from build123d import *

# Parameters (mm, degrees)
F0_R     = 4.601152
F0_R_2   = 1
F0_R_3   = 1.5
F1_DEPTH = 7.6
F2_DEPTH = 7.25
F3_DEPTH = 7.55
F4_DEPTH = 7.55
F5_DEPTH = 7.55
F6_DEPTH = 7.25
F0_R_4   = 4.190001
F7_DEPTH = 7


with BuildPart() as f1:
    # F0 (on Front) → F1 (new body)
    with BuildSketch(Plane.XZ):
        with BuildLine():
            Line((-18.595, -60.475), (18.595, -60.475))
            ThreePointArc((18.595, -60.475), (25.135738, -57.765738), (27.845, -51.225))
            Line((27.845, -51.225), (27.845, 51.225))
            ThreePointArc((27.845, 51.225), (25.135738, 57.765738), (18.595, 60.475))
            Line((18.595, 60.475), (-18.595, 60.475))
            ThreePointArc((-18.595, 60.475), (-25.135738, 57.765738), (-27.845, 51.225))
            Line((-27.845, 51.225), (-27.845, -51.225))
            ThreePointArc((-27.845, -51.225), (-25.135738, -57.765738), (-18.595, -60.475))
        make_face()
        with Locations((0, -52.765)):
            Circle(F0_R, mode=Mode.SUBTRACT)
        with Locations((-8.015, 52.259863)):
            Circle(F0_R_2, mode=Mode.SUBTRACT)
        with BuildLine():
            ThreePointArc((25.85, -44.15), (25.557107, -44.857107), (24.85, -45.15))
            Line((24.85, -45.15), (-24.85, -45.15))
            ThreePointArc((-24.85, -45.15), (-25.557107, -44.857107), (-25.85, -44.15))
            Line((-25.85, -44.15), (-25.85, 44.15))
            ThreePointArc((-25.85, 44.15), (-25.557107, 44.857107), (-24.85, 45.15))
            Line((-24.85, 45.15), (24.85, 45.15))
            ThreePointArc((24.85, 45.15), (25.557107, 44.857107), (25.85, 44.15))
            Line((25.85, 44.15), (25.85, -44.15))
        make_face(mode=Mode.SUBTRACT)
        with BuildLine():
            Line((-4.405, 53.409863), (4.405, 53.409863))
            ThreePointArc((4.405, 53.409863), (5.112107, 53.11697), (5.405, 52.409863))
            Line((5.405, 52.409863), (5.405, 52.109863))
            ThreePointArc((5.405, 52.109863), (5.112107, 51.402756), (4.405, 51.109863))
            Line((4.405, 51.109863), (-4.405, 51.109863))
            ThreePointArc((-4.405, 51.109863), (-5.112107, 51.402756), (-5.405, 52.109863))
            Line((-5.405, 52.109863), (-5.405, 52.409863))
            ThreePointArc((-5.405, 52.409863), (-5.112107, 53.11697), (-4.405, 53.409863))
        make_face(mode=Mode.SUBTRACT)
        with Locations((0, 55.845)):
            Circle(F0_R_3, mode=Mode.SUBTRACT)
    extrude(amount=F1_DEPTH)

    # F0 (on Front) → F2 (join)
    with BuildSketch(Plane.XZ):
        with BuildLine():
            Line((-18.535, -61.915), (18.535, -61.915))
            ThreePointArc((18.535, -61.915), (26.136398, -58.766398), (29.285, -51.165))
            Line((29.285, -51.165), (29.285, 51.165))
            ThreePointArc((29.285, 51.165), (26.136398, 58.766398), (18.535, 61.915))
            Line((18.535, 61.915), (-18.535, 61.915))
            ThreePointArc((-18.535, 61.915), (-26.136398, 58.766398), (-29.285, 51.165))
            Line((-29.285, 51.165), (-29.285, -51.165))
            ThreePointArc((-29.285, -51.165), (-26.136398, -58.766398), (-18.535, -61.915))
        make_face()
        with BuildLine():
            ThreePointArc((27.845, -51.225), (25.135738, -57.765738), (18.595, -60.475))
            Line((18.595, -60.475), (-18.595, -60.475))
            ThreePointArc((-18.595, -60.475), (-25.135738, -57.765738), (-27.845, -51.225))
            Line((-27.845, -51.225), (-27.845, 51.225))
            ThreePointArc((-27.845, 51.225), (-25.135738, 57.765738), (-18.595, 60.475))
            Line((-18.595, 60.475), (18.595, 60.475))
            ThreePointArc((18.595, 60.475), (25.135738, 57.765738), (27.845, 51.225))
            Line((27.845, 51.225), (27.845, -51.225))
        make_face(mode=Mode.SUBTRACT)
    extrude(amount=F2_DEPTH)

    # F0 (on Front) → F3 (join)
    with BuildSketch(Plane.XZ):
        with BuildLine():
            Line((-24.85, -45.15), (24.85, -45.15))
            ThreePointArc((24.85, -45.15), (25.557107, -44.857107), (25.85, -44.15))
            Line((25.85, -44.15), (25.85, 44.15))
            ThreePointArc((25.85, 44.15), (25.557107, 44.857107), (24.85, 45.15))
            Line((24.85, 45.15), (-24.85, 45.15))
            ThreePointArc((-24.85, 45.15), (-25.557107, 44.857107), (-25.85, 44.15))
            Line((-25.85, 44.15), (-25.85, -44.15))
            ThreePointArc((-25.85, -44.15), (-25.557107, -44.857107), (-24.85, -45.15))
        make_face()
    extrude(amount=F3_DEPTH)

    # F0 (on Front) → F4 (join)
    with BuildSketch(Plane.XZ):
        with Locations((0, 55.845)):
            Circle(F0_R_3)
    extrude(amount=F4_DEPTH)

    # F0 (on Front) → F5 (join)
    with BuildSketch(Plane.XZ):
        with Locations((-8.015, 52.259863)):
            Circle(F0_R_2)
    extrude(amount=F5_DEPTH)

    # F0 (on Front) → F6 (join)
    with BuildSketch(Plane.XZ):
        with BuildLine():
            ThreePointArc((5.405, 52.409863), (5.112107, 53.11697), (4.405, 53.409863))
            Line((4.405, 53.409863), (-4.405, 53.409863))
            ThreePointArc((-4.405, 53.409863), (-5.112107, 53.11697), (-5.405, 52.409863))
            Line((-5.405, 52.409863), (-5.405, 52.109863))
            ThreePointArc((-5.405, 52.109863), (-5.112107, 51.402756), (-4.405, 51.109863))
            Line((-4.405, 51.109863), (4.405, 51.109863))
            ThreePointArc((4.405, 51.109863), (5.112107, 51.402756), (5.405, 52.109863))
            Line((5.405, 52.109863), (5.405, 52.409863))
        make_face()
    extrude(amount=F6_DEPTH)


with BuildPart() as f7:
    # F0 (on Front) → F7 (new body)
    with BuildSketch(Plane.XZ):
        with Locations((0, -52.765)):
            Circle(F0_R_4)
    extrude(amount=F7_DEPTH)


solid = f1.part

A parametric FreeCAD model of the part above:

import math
import FreeCAD as App
import Part
import Sketcher

V = App.Vector
Q = App.Units.Quantity

doc = App.newDocument("Part")
body = doc.addObject("PartDesign::Body", "Body")

# Sketch on XZ plane
sketch1 = body.newObject("Sketcher::SketchObject", "Sketch")
sketch1.AttachmentSupport = (doc.getObject("XZ_Plane"), [""])
sketch1.MapMode = "FlatFace"
sketch1.addGeometry(Part.LineSegment(V(-18.595, -60.475, 0), V(18.595, -60.475, 0)), False)
sketch1.addGeometry(Part.ArcOfCircle(Part.Circle(V(18.595001, -51.225001, 0), V(0, 0, 1), 9.249999), math.radians(-90.000006), math.radians(0.000006)), False)
sketch1.addGeometry(Part.LineSegment(V(27.845, -51.225, 0), V(27.845, 51.225, 0)), False)
sketch1.addGeometry(Part.ArcOfCircle(Part.Circle(V(18.595001, 51.225001, 0), V(0, 0, 1), 9.249999), math.radians(-0.000006), math.radians(90.000006)), False)
sketch1.addGeometry(Part.LineSegment(V(18.595, 60.475, 0), V(-18.595, 60.475, 0)), False)
sketch1.addGeometry(Part.ArcOfCircle(Part.Circle(V(-18.595001, 51.225001, 0), V(0, 0, 1), 9.249999), math.radians(89.999994), math.radians(180.000006)), False)
sketch1.addGeometry(Part.LineSegment(V(-27.845, 51.225, 0), V(-27.845, -51.225, 0)), False)
sketch1.addGeometry(Part.ArcOfCircle(Part.Circle(V(-18.595001, -51.225001, 0), V(0, 0, 1), 9.249999), math.radians(179.999994), math.radians(270.000006)), False)
sketch1.addGeometry(Part.Circle(V(0, -52.765, 0), V(0, 0, 1), 4.601152), False)
sketch1.addGeometry(Part.Circle(V(-8.015, 52.259863, 0), V(0, 0, 1), 1), False)
sketch1.addGeometry(Part.ArcOfCircle(Part.Circle(V(-4.405001, 52.409864, 0), V(0, 0, 1), 0.999999), math.radians(89.999957), math.radians(180.000043)), False)
sketch1.addGeometry(Part.LineSegment(V(-4.405, 53.409863, 0), V(4.405, 53.409863, 0)), False)
sketch1.addGeometry(Part.ArcOfCircle(Part.Circle(V(4.405001, 52.409864, 0), V(0, 0, 1), 0.999999), math.radians(-0.000043), math.radians(90.000043)), False)
sketch1.addGeometry(Part.LineSegment(V(5.405, 52.409863, 0), V(5.405, 52.109863, 0)), False)
sketch1.addGeometry(Part.ArcOfCircle(Part.Circle(V(4.405001, 52.109862, 0), V(0, 0, 1), 0.999999), math.radians(-90.000043), math.radians(0.000043)), False)
sketch1.addGeometry(Part.LineSegment(V(4.405, 51.109863, 0), V(-4.405, 51.109863, 0)), False)
sketch1.addGeometry(Part.ArcOfCircle(Part.Circle(V(-4.405001, 52.109862, 0), V(0, 0, 1), 0.999999), math.radians(179.999957), math.radians(270.000043)), False)
sketch1.addGeometry(Part.LineSegment(V(-5.405, 52.109863, 0), V(-5.405, 52.409863, 0)), False)
sketch1.addGeometry(Part.LineSegment(V(25.85, 44.15, 0), V(25.85, -44.15, 0)), False)
sketch1.addGeometry(Part.ArcOfCircle(Part.Circle(V(24.850001, -44.150001, 0), V(0, 0, 1), 0.999999), math.radians(-90.000043), math.radians(0.000043)), False)
sketch1.addGeometry(Part.LineSegment(V(24.85, -45.15, 0), V(-24.85, -45.15, 0)), False)
sketch1.addGeometry(Part.ArcOfCircle(Part.Circle(V(-24.850001, -44.150001, 0), V(0, 0, 1), 0.999999), math.radians(179.999957), math.radians(270.000043)), False)
sketch1.addGeometry(Part.LineSegment(V(-25.85, -44.15, 0), V(-25.85, 44.15, 0)), False)
sketch1.addGeometry(Part.ArcOfCircle(Part.Circle(V(-24.850001, 44.150001, 0), V(0, 0, 1), 0.999999), math.radians(89.999957), math.radians(180.000043)), False)
sketch1.addGeometry(Part.LineSegment(V(-24.85, 45.15, 0), V(24.85, 45.15, 0)), False)
sketch1.addGeometry(Part.ArcOfCircle(Part.Circle(V(24.850001, 44.150001, 0), V(0, 0, 1), 0.999999), math.radians(-0.000043), math.radians(90.000043)), False)
sketch1.addGeometry(Part.Circle(V(0, 55.845, 0), V(0, 0, 1), 1.5), False)
sketch1.addConstraint(Sketcher.Constraint("Tangent", 0, 2, 1, 1))
sketch1.addConstraint(Sketcher.Constraint("Tangent", 1, 2, 2, 1))
sketch1.addConstraint(Sketcher.Constraint("Tangent", 2, 2, 3, 1))
sketch1.addConstraint(Sketcher.Constraint("Tangent", 3, 2, 4, 1))
sketch1.addConstraint(Sketcher.Constraint("Tangent", 4, 2, 5, 1))
sketch1.addConstraint(Sketcher.Constraint("Tangent", 5, 2, 6, 1))
sketch1.addConstraint(Sketcher.Constraint("Tangent", 6, 2, 7, 1))
sketch1.addConstraint(Sketcher.Constraint("Tangent", 7, 2, 0, 1))
sketch1.addConstraint(Sketcher.Constraint("Tangent", 10, 1, 11, 1))
sketch1.addConstraint(Sketcher.Constraint("Tangent", 11, 2, 12, 2))
sketch1.addConstraint(Sketcher.Constraint("Tangent", 12, 1, 13, 1))
sketch1.addConstraint(Sketcher.Constraint("Tangent", 13, 2, 14, 2))
sketch1.addConstraint(Sketcher.Constraint("Tangent", 14, 1, 15, 1))
sketch1.addConstraint(Sketcher.Constraint("Tangent", 15, 2, 16, 2))
sketch1.addConstraint(Sketcher.Constraint("Tangent", 16, 1, 17, 1))
sketch1.addConstraint(Sketcher.Constraint("Tangent", 17, 2, 10, 2))
sketch1.addConstraint(Sketcher.Constraint("Tangent", 18, 2, 19, 2))
sketch1.addConstraint(Sketcher.Constraint("Tangent", 19, 1, 20, 1))
sketch1.addConstraint(Sketcher.Constraint("Tangent", 20, 2, 21, 2))
sketch1.addConstraint(Sketcher.Constraint("Tangent", 21, 1, 22, 1))
sketch1.addConstraint(Sketcher.Constraint("Tangent", 22, 2, 23, 2))
sketch1.addConstraint(Sketcher.Constraint("Tangent", 23, 1, 24, 1))
sketch1.addConstraint(Sketcher.Constraint("Tangent", 24, 2, 25, 2))
sketch1.addConstraint(Sketcher.Constraint("Tangent", 25, 1, 18, 1))
sketch1.addConstraint(Sketcher.Constraint("Horizontal", 0))
sketch1.addConstraint(Sketcher.Constraint("Vertical", 2))
sketch1.addConstraint(Sketcher.Constraint("Horizontal", 4))
sketch1.addConstraint(Sketcher.Constraint("Vertical", 6))
sketch1.addConstraint(Sketcher.Constraint("Horizontal", 11))
sketch1.addConstraint(Sketcher.Constraint("Vertical", 13))
sketch1.addConstraint(Sketcher.Constraint("Horizontal", 15))
sketch1.addConstraint(Sketcher.Constraint("Vertical", 17))
sketch1.addConstraint(Sketcher.Constraint("Vertical", 18))
sketch1.addConstraint(Sketcher.Constraint("Horizontal", 20))
sketch1.addConstraint(Sketcher.Constraint("Vertical", 22))
sketch1.addConstraint(Sketcher.Constraint("Horizontal", 24))
sketch1.addConstraint(Sketcher.Constraint("Equal", 1, 3))
sketch1.addConstraint(Sketcher.Constraint("Equal", 3, 5))
sketch1.addConstraint(Sketcher.Constraint("Equal", 5, 7))
sketch1.addConstraint(Sketcher.Constraint("Equal", 9, 10))
sketch1.addConstraint(Sketcher.Constraint("Equal", 10, 12))
sketch1.addConstraint(Sketcher.Constraint("Equal", 12, 14))
sketch1.addConstraint(Sketcher.Constraint("Equal", 14, 16))
sketch1.addConstraint(Sketcher.Constraint("Equal", 16, 19))
sketch1.addConstraint(Sketcher.Constraint("Equal", 19, 21))
sketch1.addConstraint(Sketcher.Constraint("Equal", 21, 23))
sketch1.addConstraint(Sketcher.Constraint("Equal", 23, 25))
sketch1.addConstraint(Sketcher.Constraint("Symmetric", 1, 3, 5, 3, -1, 1))
sketch1.addConstraint(Sketcher.Constraint("Symmetric", 19, 3, 23, 3, -1, 1))
sketch1.addConstraint(Sketcher.Constraint("PointOnObject", 8, 3, -2))
sketch1.addConstraint(Sketcher.Constraint("PointOnObject", 26, 3, -2))
sketch1.addConstraint(Sketcher.Constraint("Diameter", 9, Q("2 mm")))
sketch1.addConstraint(Sketcher.Constraint("Diameter", 26, Q("3 mm")))
sketch1.addConstraint(Sketcher.Constraint("Radius", 1, Q("9.249999 mm")))
sketch1.addConstraint(Sketcher.Constraint("DistanceX", 20, 2, 20, 1, Q("49.7 mm")))
sketch1.addConstraint(Sketcher.Constraint("DistanceY", 13, 2, 13, 1, Q("0.3 mm")))
sketch1.addConstraint(Sketcher.Constraint("DistanceY", 18, 2, 18, 1, Q("88.3 mm")))
sketch1.addConstraint(Sketcher.Constraint("DistanceX", 10, 3, 3, 3, Q("23.000002 mm")))
sketch1.addConstraint(Sketcher.Constraint("DistanceX", 5, 3, 12, 3, Q("23.000002 mm")))
sketch1.addConstraint(Sketcher.Constraint("DistanceX", 0, 1, 0, 2, Q("37.19 mm")))
sketch1.addConstraint(Sketcher.Constraint("DistanceY", 2, 1, 2, 2, Q("102.45 mm")))
sketch1.addConstraint(Sketcher.Constraint("DistanceY", 8, 3, 1, 3, Q("1.539999 mm")))
sketch1.addConstraint(Sketcher.Constraint("DistanceX", 5, 3, 9, 3, Q("10.580001 mm")))
sketch1.addConstraint(Sketcher.Constraint("DistanceY", 9, 3, 10, 3, Q("0.150001 mm")))
sketch1.addConstraint(Sketcher.Constraint("DistanceY", 2, 2, 26, 3, Q("4.62 mm")))
sketch1.addConstraint(Sketcher.Constraint("Diameter", 8, Q("9.202304 mm")))
sketch1.addConstraint(Sketcher.Constraint("DistanceY", 3, 3, 14, 3, Q("0.884861 mm")))
pad1 = body.newObject("PartDesign::Pad", "Pad")
pad1.Profile = sketch1
pad1.Length = 7.6

# Sketch on XZ plane
sketch2 = body.newObject("Sketcher::SketchObject", "Sketch001")
sketch2.AttachmentSupport = (doc.getObject("XZ_Plane"), [""])
sketch2.MapMode = "FlatFace"
sketch2.addGeometry(Part.LineSegment(V(-18.535, -61.915, 0), V(18.535, -61.915, 0)), False)
sketch2.addGeometry(Part.ArcOfCircle(Part.Circle(V(18.535, -51.165, 0), V(0, 0, 1), 10.75), math.radians(-90.000002), math.radians(0.000002)), False)
sketch2.addGeometry(Part.LineSegment(V(29.285, -51.165, 0), V(29.285, 51.165, 0)), False)
sketch2.addGeometry(Part.ArcOfCircle(Part.Circle(V(18.535, 51.165, 0), V(0, 0, 1), 10.75), math.radians(-0.000002), math.radians(90.000002)), False)
sketch2.addGeometry(Part.LineSegment(V(18.535, 61.915, 0), V(-18.535, 61.915, 0)), False)
sketch2.addGeometry(Part.ArcOfCircle(Part.Circle(V(-18.535, 51.165, 0), V(0, 0, 1), 10.75), math.radians(89.999998), math.radians(180.000002)), False)
sketch2.addGeometry(Part.LineSegment(V(-29.285, 51.165, 0), V(-29.285, -51.165, 0)), False)
sketch2.addGeometry(Part.ArcOfCircle(Part.Circle(V(-18.535, -51.165, 0), V(0, 0, 1), 10.75), math.radians(179.999998), math.radians(270.000002)), False)
sketch2.addGeometry(Part.LineSegment(V(27.845, 51.225, 0), V(27.845, -51.225, 0)), False)
sketch2.addGeometry(Part.ArcOfCircle(Part.Circle(V(18.595001, -51.225001, 0), V(0, 0, 1), 9.249999), math.radians(-90.000006), math.radians(0.000006)), False)
sketch2.addGeometry(Part.LineSegment(V(18.595, -60.475, 0), V(-18.595, -60.475, 0)), False)
sketch2.addGeometry(Part.ArcOfCircle(Part.Circle(V(-18.595001, -51.225001, 0), V(0, 0, 1), 9.249999), math.radians(179.999994), math.radians(270.000006)), False)
sketch2.addGeometry(Part.LineSegment(V(-27.845, -51.225, 0), V(-27.845, 51.225, 0)), False)
sketch2.addGeometry(Part.ArcOfCircle(Part.Circle(V(-18.595001, 51.225001, 0), V(0, 0, 1), 9.249999), math.radians(89.999994), math.radians(180.000006)), False)
sketch2.addGeometry(Part.LineSegment(V(-18.595, 60.475, 0), V(18.595, 60.475, 0)), False)
sketch2.addGeometry(Part.ArcOfCircle(Part.Circle(V(18.595001, 51.225001, 0), V(0, 0, 1), 9.249999), math.radians(-0.000006), math.radians(90.000006)), False)
sketch2.addConstraint(Sketcher.Constraint("Tangent", 0, 2, 1, 1))
sketch2.addConstraint(Sketcher.Constraint("Tangent", 1, 2, 2, 1))
sketch2.addConstraint(Sketcher.Constraint("Tangent", 2, 2, 3, 1))
sketch2.addConstraint(Sketcher.Constraint("Tangent", 3, 2, 4, 1))
sketch2.addConstraint(Sketcher.Constraint("Tangent", 4, 2, 5, 1))
sketch2.addConstraint(Sketcher.Constraint("Tangent", 5, 2, 6, 1))
sketch2.addConstraint(Sketcher.Constraint("Tangent", 6, 2, 7, 1))
sketch2.addConstraint(Sketcher.Constraint("Tangent", 7, 2, 0, 1))
sketch2.addConstraint(Sketcher.Constraint("Tangent", 8, 2, 9, 2))
sketch2.addConstraint(Sketcher.Constraint("Tangent", 9, 1, 10, 1))
sketch2.addConstraint(Sketcher.Constraint("Tangent", 10, 2, 11, 2))
sketch2.addConstraint(Sketcher.Constraint("Tangent", 11, 1, 12, 1))
sketch2.addConstraint(Sketcher.Constraint("Tangent", 12, 2, 13, 2))
sketch2.addConstraint(Sketcher.Constraint("Tangent", 13, 1, 14, 1))
sketch2.addConstraint(Sketcher.Constraint("Tangent", 14, 2, 15, 2))
sketch2.addConstraint(Sketcher.Constraint("Tangent", 15, 1, 8, 1))
sketch2.addConstraint(Sketcher.Constraint("Horizontal", 0))
sketch2.addConstraint(Sketcher.Constraint("Vertical", 2))
sketch2.addConstraint(Sketcher.Constraint("Horizontal", 4))
sketch2.addConstraint(Sketcher.Constraint("Vertical", 6))
sketch2.addConstraint(Sketcher.Constraint("Vertical", 8))
sketch2.addConstraint(Sketcher.Constraint("Horizontal", 10))
sketch2.addConstraint(Sketcher.Constraint("Vertical", 12))
sketch2.addConstraint(Sketcher.Constraint("Horizontal", 14))
sketch2.addConstraint(Sketcher.Constraint("Equal", 1, 3))
sketch2.addConstraint(Sketcher.Constraint("Equal", 3, 5))
sketch2.addConstraint(Sketcher.Constraint("Equal", 5, 7))
sketch2.addConstraint(Sketcher.Constraint("Equal", 9, 11))
sketch2.addConstraint(Sketcher.Constraint("Equal", 11, 13))
sketch2.addConstraint(Sketcher.Constraint("Equal", 13, 15))
sketch2.addConstraint(Sketcher.Constraint("Symmetric", 1, 3, 5, 3, -1, 1))
sketch2.addConstraint(Sketcher.Constraint("Symmetric", 9, 3, 13, 3, -1, 1))
sketch2.addConstraint(Sketcher.Constraint("Radius", 1, Q("10.75 mm")))
sketch2.addConstraint(Sketcher.Constraint("Radius", 9, Q("9.249999 mm")))
sketch2.addConstraint(Sketcher.Constraint("DistanceX", 0, 1, 0, 2, Q("37.07 mm")))
sketch2.addConstraint(Sketcher.Constraint("DistanceX", 10, 2, 10, 1, Q("37.19 mm")))
sketch2.addConstraint(Sketcher.Constraint("DistanceY", 2, 1, 2, 2, Q("102.33 mm")))
sketch2.addConstraint(Sketcher.Constraint("DistanceY", 8, 2, 8, 1, Q("102.45 mm")))
pad2 = body.newObject("PartDesign::Pad", "Pad001")
pad2.Profile = sketch2
pad2.Length = 7.25

# Sketch on XZ plane
sketch3 = body.newObject("Sketcher::SketchObject", "Sketch002")
sketch3.AttachmentSupport = (doc.getObject("XZ_Plane"), [""])
sketch3.MapMode = "FlatFace"
sketch3.addGeometry(Part.LineSegment(V(-24.85, -45.15, 0), V(24.85, -45.15, 0)), False)
sketch3.addGeometry(Part.ArcOfCircle(Part.Circle(V(24.850001, -44.150001, 0), V(0, 0, 1), 0.999999), math.radians(-90.000043), math.radians(0.000043)), False)
sketch3.addGeometry(Part.LineSegment(V(25.85, -44.15, 0), V(25.85, 44.15, 0)), False)
sketch3.addGeometry(Part.ArcOfCircle(Part.Circle(V(24.850001, 44.150001, 0), V(0, 0, 1), 0.999999), math.radians(-0.000043), math.radians(90.000043)), False)
sketch3.addGeometry(Part.LineSegment(V(24.85, 45.15, 0), V(-24.85, 45.15, 0)), False)
sketch3.addGeometry(Part.ArcOfCircle(Part.Circle(V(-24.850001, 44.150001, 0), V(0, 0, 1), 0.999999), math.radians(89.999957), math.radians(180.000043)), False)
sketch3.addGeometry(Part.LineSegment(V(-25.85, 44.15, 0), V(-25.85, -44.15, 0)), False)
sketch3.addGeometry(Part.ArcOfCircle(Part.Circle(V(-24.850001, -44.150001, 0), V(0, 0, 1), 0.999999), math.radians(179.999957), math.radians(270.000043)), False)
sketch3.addConstraint(Sketcher.Constraint("Tangent", 0, 2, 1, 1))
sketch3.addConstraint(Sketcher.Constraint("Tangent", 1, 2, 2, 1))
sketch3.addConstraint(Sketcher.Constraint("Tangent", 2, 2, 3, 1))
sketch3.addConstraint(Sketcher.Constraint("Tangent", 3, 2, 4, 1))
sketch3.addConstraint(Sketcher.Constraint("Tangent", 4, 2, 5, 1))
sketch3.addConstraint(Sketcher.Constraint("Tangent", 5, 2, 6, 1))
sketch3.addConstraint(Sketcher.Constraint("Tangent", 6, 2, 7, 1))
sketch3.addConstraint(Sketcher.Constraint("Tangent", 7, 2, 0, 1))
sketch3.addConstraint(Sketcher.Constraint("Horizontal", 0))
sketch3.addConstraint(Sketcher.Constraint("Vertical", 2))
sketch3.addConstraint(Sketcher.Constraint("Horizontal", 4))
sketch3.addConstraint(Sketcher.Constraint("Vertical", 6))
sketch3.addConstraint(Sketcher.Constraint("Equal", 1, 3))
sketch3.addConstraint(Sketcher.Constraint("Equal", 3, 5))
sketch3.addConstraint(Sketcher.Constraint("Equal", 5, 7))
sketch3.addConstraint(Sketcher.Constraint("Symmetric", 1, 3, 5, 3, -1, 1))
sketch3.addConstraint(Sketcher.Constraint("Radius", 1, Q("0.999999 mm")))
sketch3.addConstraint(Sketcher.Constraint("DistanceX", 0, 1, 0, 2, Q("49.7 mm")))
sketch3.addConstraint(Sketcher.Constraint("DistanceY", 2, 1, 2, 2, Q("88.3 mm")))
pad3 = body.newObject("PartDesign::Pad", "Pad002")
pad3.Profile = sketch3
pad3.Length = 7.55

# Sketch on XZ plane
sketch4 = body.newObject("Sketcher::SketchObject", "Sketch003")
sketch4.AttachmentSupport = (doc.getObject("XZ_Plane"), [""])
sketch4.MapMode = "FlatFace"
sketch4.addGeometry(Part.Circle(V(0, 55.845, 0), V(0, 0, 1), 1.5), False)
sketch4.addConstraint(Sketcher.Constraint("PointOnObject", 0, 3, -2))
sketch4.addConstraint(Sketcher.Constraint("Diameter", 0, Q("3 mm")))
sketch4.addConstraint(Sketcher.Constraint("DistanceY", -1, 1, 0, 3, Q("55.845 mm")))
pad4 = body.newObject("PartDesign::Pad", "Pad003")
pad4.Profile = sketch4
pad4.Length = 7.55

# Sketch on XZ plane
sketch5 = body.newObject("Sketcher::SketchObject", "Sketch004")
sketch5.AttachmentSupport = (doc.getObject("XZ_Plane"), [""])
sketch5.MapMode = "FlatFace"
sketch5.addGeometry(Part.Circle(V(-8.015, 52.259863, 0), V(0, 0, 1), 1), False)
sketch5.addConstraint(Sketcher.Constraint("Diameter", 0, Q("2 mm")))
sketch5.addConstraint(Sketcher.Constraint("DistanceX", 0, 3, -1, 1, Q("8.015 mm")))
sketch5.addConstraint(Sketcher.Constraint("DistanceY", -1, 1, 0, 3, Q("52.259863 mm")))
pad5 = body.newObject("PartDesign::Pad", "Pad004")
pad5.Profile = sketch5
pad5.Length = 7.55

# Sketch on XZ plane
sketch6 = body.newObject("Sketcher::SketchObject", "Sketch005")
sketch6.AttachmentSupport = (doc.getObject("XZ_Plane"), [""])
sketch6.MapMode = "FlatFace"
sketch6.addGeometry(Part.ArcOfCircle(Part.Circle(V(4.405001, 52.409864, 0), V(0, 0, 1), 0.999999), math.radians(-0.000043), math.radians(90.000043)), False)
sketch6.addGeometry(Part.LineSegment(V(4.405, 53.409863, 0), V(-4.405, 53.409863, 0)), False)
sketch6.addGeometry(Part.ArcOfCircle(Part.Circle(V(-4.405001, 52.409864, 0), V(0, 0, 1), 0.999999), math.radians(89.999957), math.radians(180.000043)), False)
sketch6.addGeometry(Part.LineSegment(V(-5.405, 52.409863, 0), V(-5.405, 52.109863, 0)), False)
sketch6.addGeometry(Part.ArcOfCircle(Part.Circle(V(-4.405001, 52.109862, 0), V(0, 0, 1), 0.999999), math.radians(179.999957), math.radians(270.000043)), False)
sketch6.addGeometry(Part.LineSegment(V(-4.405, 51.109863, 0), V(4.405, 51.109863, 0)), False)
sketch6.addGeometry(Part.ArcOfCircle(Part.Circle(V(4.405001, 52.109862, 0), V(0, 0, 1), 0.999999), math.radians(-90.000043), math.radians(0.000043)), False)
sketch6.addGeometry(Part.LineSegment(V(5.405, 52.109863, 0), V(5.405, 52.409863, 0)), False)
sketch6.addConstraint(Sketcher.Constraint("Tangent", 0, 2, 1, 1))
sketch6.addConstraint(Sketcher.Constraint("Tangent", 1, 2, 2, 1))
sketch6.addConstraint(Sketcher.Constraint("Tangent", 2, 2, 3, 1))
sketch6.addConstraint(Sketcher.Constraint("Tangent", 3, 2, 4, 1))
sketch6.addConstraint(Sketcher.Constraint("Tangent", 4, 2, 5, 1))
sketch6.addConstraint(Sketcher.Constraint("Tangent", 5, 2, 6, 1))
sketch6.addConstraint(Sketcher.Constraint("Tangent", 6, 2, 7, 1))
sketch6.addConstraint(Sketcher.Constraint("Tangent", 7, 2, 0, 1))
sketch6.addConstraint(Sketcher.Constraint("Horizontal", 1))
sketch6.addConstraint(Sketcher.Constraint("Vertical", 3))
sketch6.addConstraint(Sketcher.Constraint("Horizontal", 5))
sketch6.addConstraint(Sketcher.Constraint("Vertical", 7))
sketch6.addConstraint(Sketcher.Constraint("Equal", 0, 2))
sketch6.addConstraint(Sketcher.Constraint("Equal", 2, 4))
sketch6.addConstraint(Sketcher.Constraint("Equal", 4, 6))
sketch6.addConstraint(Sketcher.Constraint("Radius", 0, Q("0.999999 mm")))
sketch6.addConstraint(Sketcher.Constraint("DistanceY", 3, 2, 3, 1, Q("0.3 mm")))
sketch6.addConstraint(Sketcher.Constraint("DistanceX", 1, 2, 1, 1, Q("8.81 mm")))
sketch6.addConstraint(Sketcher.Constraint("DistanceX", -1, 1, 0, 3, Q("4.405001 mm")))
sketch6.addConstraint(Sketcher.Constraint("DistanceY", -1, 1, 0, 3, Q("52.409864 mm")))
pad6 = body.newObject("PartDesign::Pad", "Pad005")
pad6.Profile = sketch6
pad6.Length = 7.25
body2 = doc.addObject("PartDesign::Body", "Body001")

# Sketch on XZ plane
sketch7 = body2.newObject("Sketcher::SketchObject", "Sketch006")
sketch7.AttachmentSupport = (doc.getObject("XZ_Plane001"), [""])
sketch7.MapMode = "FlatFace"
sketch7.addGeometry(Part.Circle(V(0, -52.765, 0), V(0, 0, 1), 4.190001), False)
sketch7.addConstraint(Sketcher.Constraint("PointOnObject", 0, 3, -2))
sketch7.addConstraint(Sketcher.Constraint("Diameter", 0, Q("8.380002 mm")))
sketch7.addConstraint(Sketcher.Constraint("DistanceY", 0, 3, -1, 1, Q("52.765 mm")))
pad7 = body2.newObject("PartDesign::Pad", "Pad006")
pad7.Profile = sketch7
pad7.Length = 7
body2.Visibility = False

doc.recompute()
